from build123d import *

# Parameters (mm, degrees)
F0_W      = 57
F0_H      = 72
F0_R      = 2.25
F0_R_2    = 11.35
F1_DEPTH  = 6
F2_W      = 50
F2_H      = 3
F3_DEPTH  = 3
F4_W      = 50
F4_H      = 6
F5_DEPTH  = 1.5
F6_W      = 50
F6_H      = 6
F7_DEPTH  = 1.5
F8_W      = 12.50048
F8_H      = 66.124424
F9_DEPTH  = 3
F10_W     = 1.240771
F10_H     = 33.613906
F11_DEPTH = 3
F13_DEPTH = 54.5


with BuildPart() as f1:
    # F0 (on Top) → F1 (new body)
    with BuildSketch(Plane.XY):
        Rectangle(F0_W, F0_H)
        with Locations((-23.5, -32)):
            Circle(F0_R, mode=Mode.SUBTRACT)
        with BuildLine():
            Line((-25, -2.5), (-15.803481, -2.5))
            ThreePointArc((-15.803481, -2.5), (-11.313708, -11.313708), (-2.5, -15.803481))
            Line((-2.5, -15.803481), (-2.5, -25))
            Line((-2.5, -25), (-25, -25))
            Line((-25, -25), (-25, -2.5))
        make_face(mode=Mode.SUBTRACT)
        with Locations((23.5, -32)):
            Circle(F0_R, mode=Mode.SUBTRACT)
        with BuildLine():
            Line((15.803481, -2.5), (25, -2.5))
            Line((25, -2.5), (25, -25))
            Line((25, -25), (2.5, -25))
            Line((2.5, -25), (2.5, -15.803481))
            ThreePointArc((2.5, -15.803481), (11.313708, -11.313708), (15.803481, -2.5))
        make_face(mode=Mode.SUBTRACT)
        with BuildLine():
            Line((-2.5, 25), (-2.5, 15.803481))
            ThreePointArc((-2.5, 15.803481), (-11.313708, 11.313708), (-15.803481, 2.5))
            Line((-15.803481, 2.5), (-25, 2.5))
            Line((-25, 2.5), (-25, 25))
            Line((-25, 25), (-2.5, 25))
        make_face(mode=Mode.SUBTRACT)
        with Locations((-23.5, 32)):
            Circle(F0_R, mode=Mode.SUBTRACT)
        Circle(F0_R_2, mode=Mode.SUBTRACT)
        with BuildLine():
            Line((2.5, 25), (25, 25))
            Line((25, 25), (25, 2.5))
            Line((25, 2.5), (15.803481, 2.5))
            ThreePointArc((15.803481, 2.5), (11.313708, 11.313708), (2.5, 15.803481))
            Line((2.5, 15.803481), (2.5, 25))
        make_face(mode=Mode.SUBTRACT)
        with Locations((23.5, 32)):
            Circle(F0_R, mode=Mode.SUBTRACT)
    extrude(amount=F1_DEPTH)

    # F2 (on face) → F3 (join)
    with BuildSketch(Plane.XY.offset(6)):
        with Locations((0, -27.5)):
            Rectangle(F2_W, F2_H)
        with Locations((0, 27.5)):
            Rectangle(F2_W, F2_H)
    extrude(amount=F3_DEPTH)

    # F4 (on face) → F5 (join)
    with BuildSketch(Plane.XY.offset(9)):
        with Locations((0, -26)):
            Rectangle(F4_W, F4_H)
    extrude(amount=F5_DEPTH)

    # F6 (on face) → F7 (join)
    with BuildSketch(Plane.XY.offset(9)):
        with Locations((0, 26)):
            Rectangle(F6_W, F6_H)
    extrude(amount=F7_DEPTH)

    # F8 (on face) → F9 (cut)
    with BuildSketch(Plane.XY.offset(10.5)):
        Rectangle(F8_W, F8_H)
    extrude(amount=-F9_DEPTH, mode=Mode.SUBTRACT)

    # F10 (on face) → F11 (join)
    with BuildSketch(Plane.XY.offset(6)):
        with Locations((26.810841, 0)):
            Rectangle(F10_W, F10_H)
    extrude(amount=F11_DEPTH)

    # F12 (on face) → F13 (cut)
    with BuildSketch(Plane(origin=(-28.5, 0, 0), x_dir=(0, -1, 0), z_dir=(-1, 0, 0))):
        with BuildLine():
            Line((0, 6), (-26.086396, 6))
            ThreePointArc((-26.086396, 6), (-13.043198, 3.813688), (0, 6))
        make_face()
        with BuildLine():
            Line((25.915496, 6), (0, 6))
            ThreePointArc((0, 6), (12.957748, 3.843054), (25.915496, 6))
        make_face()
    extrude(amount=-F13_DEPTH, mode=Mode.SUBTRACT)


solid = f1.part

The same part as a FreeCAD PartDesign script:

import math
import FreeCAD as App
import Part
import Sketcher

V = App.Vector
Q = App.Units.Quantity


def add_polygon(sketch, points):
    """Adds a closed chain of lines whose ends are joined by coincident constraints."""
    first, n = sketch.GeometryCount, len(points)
    for a, b in zip(points, points[1:] + points[:1]):
        sketch.addGeometry(Part.LineSegment(App.Vector(*a, 0), App.Vector(*b, 0)), False)
    for i in range(n):
        sketch.addConstraint(Sketcher.Constraint("Coincident", first + i, 2, first + (i + 1) % n, 1))

doc = App.newDocument("Part")
body = doc.addObject("PartDesign::Body", "Body")

# Sketch on XY plane
sketch1 = doc.addObject("Sketcher::SketchObject", "Sketch")
body.addObject(sketch1)
sketch1.AttachmentSupport = (doc.XY_Plane, [""])
sketch1.MapMode = "FlatFace"
add_polygon(sketch1, [(-28.5, 36), (-28.5, -36), (28.5, -36), (28.5, 36)])  # lines 0-3
sketch1.addGeometry(Part.Circle(V(-23.5, -32, 0), V(0, 0, 1), 2.2), False)  # 4
sketch1.addGeometry(Part.LineSegment(V(-25, -25, 0), V(-25, -2.5, 0)), False)  # 5
sketch1.addGeometry(Part.LineSegment(V(-25, -2.5, 0), V(-15.8, -2.5, 0)), False)  # 6
sketch1.addGeometry(Part.ArcOfCircle(Part.Circle(V(0, 0, 0), V(0, 0, 1), 16), math.radians(-171), math.radians(-99)), False)  # 7
sketch1.addGeometry(Part.LineSegment(V(-2.5, -15.8, 0), V(-2.5, -25, 0)), False)  # 8
sketch1.addGeometry(Part.LineSegment(V(-2.5, -25, 0), V(-25, -25, 0)), False)  # 9
sketch1.addGeometry(Part.Circle(V(23.5, -32, 0), V(0, 0, 1), 2.2), False)  # 10
sketch1.addGeometry(Part.ArcOfCircle(Part.Circle(V(0, 0, 0), V(0, 0, 1), 16), math.radians(-81), math.radians(-9)), False)  # 11
sketch1.addGeometry(Part.LineSegment(V(15.8, -2.5, 0), V(25, -2.5, 0)), False)  # 12
sketch1.addGeometry(Part.LineSegment(V(25, -2.5, 0), V(25, -25, 0)), False)  # 13
sketch1.addGeometry(Part.LineSegment(V(25, -25, 0), V(2.5, -25, 0)), False)  # 14
sketch1.addGeometry(Part.LineSegment(V(2.5, -25, 0), V(2.5, -15.8, 0)), False)  # 15
sketch1.addGeometry(Part.LineSegment(V(-25, 25, 0), V(-2.5, 25, 0)), False)  # 16
sketch1.addGeometry(Part.LineSegment(V(-2.5, 25, 0), V(-2.5, 15.8, 0)), False)  # 17
sketch1.addGeometry(Part.ArcOfCircle(Part.Circle(V(0, 0, 0), V(0, 0, 1), 16), math.radians(99), math.radians(171)), False)  # 18
sketch1.addGeometry(Part.LineSegment(V(-15.8, 2.5, 0), V(-25, 2.5, 0)), False)  # 19
sketch1.addGeometry(Part.LineSegment(V(-25, 2.5, 0), V(-25, 25, 0)), False)  # 20
sketch1.addGeometry(Part.Circle(V(0, 0, 0), V(0, 0, 1), 11.3), False)  # 21
sketch1.addGeometry(Part.Circle(V(-23.5, 32, 0), V(0, 0, 1), 2.2), False)  # 22
sketch1.addGeometry(Part.LineSegment(V(2.5, 15.8, 0), V(2.5, 25, 0)), False)  # 23
sketch1.addGeometry(Part.LineSegment(V(2.5, 25, 0), V(25, 25, 0)), False)  # 24
sketch1.addGeometry(Part.LineSegment(V(25, 25, 0), V(25, 2.5, 0)), False)  # 25
sketch1.addGeometry(Part.LineSegment(V(25, 2.5, 0), V(15.8, 2.5, 0)), False)  # 26
sketch1.addGeometry(Part.ArcOfCircle(Part.Circle(V(0, 0, 0), V(0, 0, 1), 16), math.radians(9), math.radians(81)), False)  # 27
sketch1.addGeometry(Part.Circle(V(23.5, 32, 0), V(0, 0, 1), 2.2), False)  # 28
sketch1.addConstraint([
    Sketcher.Constraint("Coincident", 5, 2, 6, 1),
    Sketcher.Constraint("Coincident", 6, 2, 7, 1),
    Sketcher.Constraint("Coincident", 7, 2, 8, 1),
    Sketcher.Constraint("Coincident", 8, 2, 9, 1),
    Sketcher.Constraint("Coincident", 9, 2, 5, 1),
    Sketcher.Constraint("Coincident", 11, 2, 12, 1),
    Sketcher.Constraint("Coincident", 12, 2, 13, 1),
    Sketcher.Constraint("Coincident", 13, 2, 14, 1),
    Sketcher.Constraint("Coincident", 14, 2, 15, 1),
    Sketcher.Constraint("Coincident", 15, 2, 11, 1),
    Sketcher.Constraint("Coincident", 16, 2, 17, 1),
    Sketcher.Constraint("Coincident", 17, 2, 18, 1),
    Sketcher.Constraint("Coincident", 18, 2, 19, 1),
    Sketcher.Constraint("Coincident", 19, 2, 20, 1),
    Sketcher.Constraint("Coincident", 20, 2, 16, 1),
    Sketcher.Constraint("Coincident", 23, 2, 24, 1),
    Sketcher.Constraint("Coincident", 24, 2, 25, 1),
    Sketcher.Constraint("Coincident", 25, 2, 26, 1),
    Sketcher.Constraint("Coincident", 26, 2, 27, 1),
    Sketcher.Constraint("Coincident", 27, 2, 23, 1),
    Sketcher.Constraint("Vertical", 0),
    Sketcher.Constraint("Horizontal", 1),
    Sketcher.Constraint("Vertical", 2),
    Sketcher.Constraint("Horizontal", 3),
    Sketcher.Constraint("Vertical", 5),
    Sketcher.Constraint("Horizontal", 6),
    Sketcher.Constraint("Vertical", 8),
    Sketcher.Constraint("Horizontal", 9),
    Sketcher.Constraint("Horizontal", 12),
    Sketcher.Constraint("Vertical", 13),
    Sketcher.Constraint("Horizontal", 14),
    Sketcher.Constraint("Vertical", 15),
    Sketcher.Constraint("Horizontal", 16),
    Sketcher.Constraint("Vertical", 17),
    Sketcher.Constraint("Horizontal", 19),
    Sketcher.Constraint("Vertical", 20),
    Sketcher.Constraint("Vertical", 23),
    Sketcher.Constraint("Horizontal", 24),
    Sketcher.Constraint("Vertical", 25),
    Sketcher.Constraint("Horizontal", 26),
    Sketcher.Constraint("Coincident", 7, 3, -1, 1),
    Sketcher.Constraint("Coincident", 11, 3, -1, 1),
    Sketcher.Constraint("Coincident", 18, 3, -1, 1),
    Sketcher.Constraint("Coincident", 21, 3, -1, 1),
    Sketcher.Constraint("Coincident", 27, 3, -1, 1),
    Sketcher.Constraint("Equal", 4, 10),
    Sketcher.Constraint("Equal", 7, 11),
    Sketcher.Constraint("Equal", 11, 18),
    Sketcher.Constraint("Equal", 10, 22),
    Sketcher.Constraint("Equal", 18, 27),
    Sketcher.Constraint("Equal", 22, 28),
    Sketcher.Constraint("Symmetric", 10, 3, 22, 3, -1, 1),
    Sketcher.Constraint("Symmetric", 4, 3, 28, 3, -1, 1),
    Sketcher.Constraint("Symmetric", 0, 2, 2, 2, -1, 1),
    Sketcher.Constraint("Symmetric", 14, 2, 16, 2, -1, 1),
    Sketcher.Constraint("Symmetric", 12, 2, 19, 2, -1, 1),
    Sketcher.Constraint("Symmetric", 8, 2, 23, 2, -1, 1),
    Sketcher.Constraint("Symmetric", 5, 2, 25, 2, -1, 1),
    Sketcher.Constraint("Symmetric", 4, 3, 10, 3, -2),
    Sketcher.Constraint("Symmetric", 5, 2, 12, 2, -2),
    Sketcher.Constraint("Symmetric", 8, 2, 14, 2, -2),
    Sketcher.Constraint("Equal", 24, 5),
    Sketcher.Constraint("Equal", 26, 8),
    Sketcher.Constraint("Diameter", 4, Q("4.5 mm")),
    Sketcher.Constraint("Diameter", 21, Q("22.7 mm")),
    Sketcher.Constraint("DistanceX", 1, 1, 1, 2, Q("57 mm")),
    Sketcher.Constraint("DistanceY", 0, 2, 0, 1, Q("72 mm")),
    Sketcher.Constraint("DistanceX", 9, 2, 9, 1, Q("22.5 mm")),
    Sketcher.Constraint("DistanceY", 4, 3, -1, 1, Q("32 mm")),
    Sketcher.Constraint("DistanceX", 5, 2, -1, 1, Q("25 mm")),
    Sketcher.Constraint("DistanceX", 4, 3, 10, 3, Q("47 mm")),
    Sketcher.Constraint("Radius", 7, Q("16.000005 mm")),
])
pad1 = doc.addObject("PartDesign::Pad", "Pad")
body.addObject(pad1)
pad1.Profile = sketch1
pad1.Length = 6

# Sketch on XY plane
sketch2 = doc.addObject("Sketcher::SketchObject", "Sketch001")
body.addObject(sketch2)
sketch2.AttachmentSupport = (doc.XY_Plane, [""])
sketch2.MapMode = "FlatFace"
sketch2.AttachmentOffset = App.Placement(V(0, 0, 6), App.Rotation())
add_polygon(sketch2, [(-25, -26), (-25, -29), (25, -29), (25, -26)])  # lines 0-3
add_polygon(sketch2, [(-25, 29), (-25, 26), (25, 26), (25, 29)])  # lines 4-7
sketch2.addConstraint([
    Sketcher.Constraint("Vertical", 0),
    Sketcher.Constraint("Horizontal", 1),
    Sketcher.Constraint("Vertical", 2),
    Sketcher.Constraint("Horizontal", 3),
    Sketcher.Constraint("Vertical", 4),
    Sketcher.Constraint("Horizontal", 5),
    Sketcher.Constraint("Vertical", 6),
    Sketcher.Constraint("Horizontal", 7),
    Sketcher.Constraint("Symmetric", 2, 2, 4, 2, -1, 1),
    Sketcher.Constraint("Symmetric", 0, 2, 6, 2, -1, 1),
    Sketcher.Constraint("Vertical", 3, 2, 4, 2),
    Sketcher.Constraint("DistanceX", 1, 1, 1, 2, Q("50 mm")),
    Sketcher.Constraint("DistanceY", 0, 2, 0, 1, Q("3 mm")),
    Sketcher.Constraint("DistanceY", 0, 2, -1, 1, Q("29 mm")),
])
pad2 = doc.addObject("PartDesign::Pad", "Pad001")
body.addObject(pad2)
pad2.Profile = sketch2
pad2.Length = 3

# Sketch on XY plane
sketch3 = doc.addObject("Sketcher::SketchObject", "Sketch002")
body.addObject(sketch3)
sketch3.AttachmentSupport = (doc.XY_Plane, [""])
sketch3.MapMode = "FlatFace"
sketch3.AttachmentOffset = App.Placement(V(0, 0, 9), App.Rotation())
add_polygon(sketch3, [(-25, -23), (-25, -29), (25, -29), (25, -23)])  # lines 0-3
sketch3.addConstraint([
    Sketcher.Constraint("Vertical", 0),
    Sketcher.Constraint("Horizontal", 1),
    Sketcher.Constraint("Vertical", 2),
    Sketcher.Constraint("Horizontal", 3),
    Sketcher.Constraint("DistanceX", 1, 1, 1, 2, Q("50 mm")),
    Sketcher.Constraint("DistanceY", 0, 2, 0, 1, Q("6 mm")),
    Sketcher.Constraint("DistanceX", 0, 2, -1, 1, Q("25 mm")),
    Sketcher.Constraint("DistanceY", 0, 2, -1, 1, Q("29 mm")),
])
pad3 = doc.addObject("PartDesign::Pad", "Pad002")
body.addObject(pad3)
pad3.Profile = sketch3
pad3.Length = 1.5

# Sketch on XY plane
sketch4 = doc.addObject("Sketcher::SketchObject", "Sketch003")
body.addObject(sketch4)
sketch4.AttachmentSupport = (doc.XY_Plane, [""])
sketch4.MapMode = "FlatFace"
sketch4.AttachmentOffset = App.Placement(V(0, 0, 9), App.Rotation())
add_polygon(sketch4, [(-25, 29), (-25, 23), (25, 23), (25, 29)])  # lines 0-3
sketch4.addConstraint([
    Sketcher.Constraint("Vertical", 0),
    Sketcher.Constraint("Horizontal", 1),
    Sketcher.Constraint("Vertical", 2),
    Sketcher.Constraint("Horizontal", 3),
    Sketcher.Constraint("DistanceX", 1, 1, 1, 2, Q("50 mm")),
    Sketcher.Constraint("DistanceY", 0, 2, 0, 1, Q("6 mm")),
    Sketcher.Constraint("DistanceX", 0, 2, -1, 1, Q("25 mm")),
    Sketcher.Constraint("DistanceY", -1, 1, 0, 2, Q("23 mm")),
])
pad4 = doc.addObject("PartDesign::Pad", "Pad003")
body.addObject(pad4)
pad4.Profile = sketch4
pad4.Length = 1.5

# Sketch on XY plane
sketch5 = doc.addObject("Sketcher::SketchObject", "Sketch004")
body.addObject(sketch5)
sketch5.AttachmentSupport = (doc.XY_Plane, [""])
sketch5.MapMode = "FlatFace"
sketch5.AttachmentOffset = App.Placement(V(0, 0, 10.5), App.Rotation())
add_polygon(sketch5, [(-6, 33), (-6, -33), (6, -33), (6, 33)])  # lines 0-3
sketch5.addConstraint([
    Sketcher.Constraint("Vertical", 0),
    Sketcher.Constraint("Horizontal", 1),
    Sketcher.Constraint("Vertical", 2),
    Sketcher.Constraint("Horizontal", 3),
    Sketcher.Constraint("Symmetric", 0, 2, 2, 2, -1, 1),
    Sketcher.Constraint("DistanceX", 1, 1, 1, 2, Q("12.50048 mm")),
    Sketcher.Constraint("DistanceY", 0, 2, 0, 1, Q("66.124424 mm")),
])
pocket1 = doc.addObject("PartDesign::Pocket", "Pocket")
body.addObject(pocket1)
pocket1.Profile = sketch5
pocket1.Length = 3

# Sketch on XY plane
sketch6 = doc.addObject("Sketcher::SketchObject", "Sketch005")
body.addObject(sketch6)
sketch6.AttachmentSupport = (doc.XY_Plane, [""])
sketch6.MapMode = "FlatFace"
sketch6.AttachmentOffset = App.Placement(V(0, 0, 6), App.Rotation())
add_polygon(sketch6, [(26.2, 16.8), (26.2, -16.8), (27.4, -16.8), (27.4, 16.8)])  # lines 0-3
sketch6.addConstraint([
    Sketcher.Constraint("Vertical", 0),
    Sketcher.Constraint("Horizontal", 1),
    Sketcher.Constraint("Vertical", 2),
    Sketcher.Constraint("Horizontal", 3),
    Sketcher.Constraint("DistanceX", 1, 1, 1, 2, Q("1.240771 mm")),
    Sketcher.Constraint("DistanceY", 0, 2, 0, 1, Q("33.613906 mm")),
    Sketcher.Constraint("DistanceX", -1, 1, 0, 2, Q("26.190455 mm")),
    Sketcher.Constraint("DistanceY", 0, 2, -1, 1, Q("16.806953 mm")),
])
pad5 = doc.addObject("PartDesign::Pad", "Pad004")
body.addObject(pad5)
pad5.Profile = sketch6
pad5.Length = 3

# Sketch on YZ plane
sketch7 = doc.addObject("Sketcher::SketchObject", "Sketch006")
body.addObject(sketch7)
sketch7.AttachmentSupport = (doc.YZ_Plane, [""])
sketch7.MapMode = "FlatFace"
sketch7.AttachmentOffset = App.Placement(V(0, 0, -28.5), App.Rotation())
sketch7.addGeometry([
    Part.LineSegment(V(0, 6, 0), V(26, 6, 0)),
    Part.ArcOfCircle(Part.Circle(V(13, 44, 0), V(0, 0, 1), 40), math.radians(-109), math.radians(-71)),
    Part.LineSegment(V(-26, 6, 0), V(0, 6, 0)),
    Part.ArcOfCircle(Part.Circle(V(-13, 44, 0), V(0, 0, 1), 40), math.radians(-109), math.radians(-71)),
], False)
sketch7.addConstraint([
    Sketcher.Constraint("Coincident", 0, 1, 1, 1),
    Sketcher.Constraint("Coincident", 1, 2, 0, 2),
    Sketcher.Constraint("Coincident", 2, 1, 3, 1),
    Sketcher.Constraint("Coincident", 3, 2, 2, 2),
    Sketcher.Constraint("Horizontal", 0),
    Sketcher.Constraint("Horizontal", 2),
    Sketcher.Constraint("Coincident", 3, 2, 0, 1),
    Sketcher.Constraint("PointOnObject", 0, 1, -2),
    Sketcher.Constraint("DistanceY", -1, 1, 0, 1, Q("6 mm")),
    Sketcher.Constraint("Radius", 1, Q("40.000003 mm")),
    Sketcher.Constraint("Radius", 3, Q("39.999993 mm")),
    Sketcher.Constraint("DistanceX", 3, 2, 1, 3, Q("13.043198 mm")),
    Sketcher.Constraint("DistanceX", 2, 1, 2, 2, Q("25.915496 mm")),
])
pocket2 = doc.addObject("PartDesign::Pocket", "Pocket001")
body.addObject(pocket2)
pocket2.Profile = sketch7
pocket2.Length = 54.5
pocket2.Reversed = True

doc.recompute()
